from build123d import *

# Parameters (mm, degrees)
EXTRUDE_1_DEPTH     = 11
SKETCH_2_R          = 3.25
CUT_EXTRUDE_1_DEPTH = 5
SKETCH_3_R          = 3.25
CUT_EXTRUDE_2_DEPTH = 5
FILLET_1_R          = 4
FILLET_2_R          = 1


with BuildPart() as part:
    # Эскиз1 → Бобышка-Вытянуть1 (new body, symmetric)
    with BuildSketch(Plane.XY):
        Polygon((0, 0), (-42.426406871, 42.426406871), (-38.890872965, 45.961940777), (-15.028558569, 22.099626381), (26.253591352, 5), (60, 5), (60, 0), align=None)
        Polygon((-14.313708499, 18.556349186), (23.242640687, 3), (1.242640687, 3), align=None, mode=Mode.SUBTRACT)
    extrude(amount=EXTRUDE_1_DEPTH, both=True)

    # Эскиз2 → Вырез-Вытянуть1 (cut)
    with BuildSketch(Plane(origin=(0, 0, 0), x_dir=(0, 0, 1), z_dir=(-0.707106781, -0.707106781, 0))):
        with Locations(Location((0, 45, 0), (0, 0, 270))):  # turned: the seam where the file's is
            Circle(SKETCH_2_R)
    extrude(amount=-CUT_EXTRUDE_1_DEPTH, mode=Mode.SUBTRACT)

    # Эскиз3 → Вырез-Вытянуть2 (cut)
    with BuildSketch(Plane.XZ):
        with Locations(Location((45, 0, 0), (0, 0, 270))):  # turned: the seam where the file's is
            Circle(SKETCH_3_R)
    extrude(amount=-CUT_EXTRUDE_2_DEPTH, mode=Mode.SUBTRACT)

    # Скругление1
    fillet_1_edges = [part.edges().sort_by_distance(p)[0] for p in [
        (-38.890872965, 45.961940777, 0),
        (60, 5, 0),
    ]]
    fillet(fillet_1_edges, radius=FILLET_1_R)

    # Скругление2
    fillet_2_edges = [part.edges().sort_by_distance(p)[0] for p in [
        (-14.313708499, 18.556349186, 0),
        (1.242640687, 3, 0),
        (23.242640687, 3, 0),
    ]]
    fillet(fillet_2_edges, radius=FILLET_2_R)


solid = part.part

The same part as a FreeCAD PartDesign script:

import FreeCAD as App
import Part
import Sketcher
from FreeCAD import Vector
Q = App.Units.Quantity


def edges_at(feature, points):
    """Names of the edges that pass closest to the given points."""
    edges = feature.Shape.Edges
    near = lambda p: min(range(len(edges)), key=lambda i: edges[i].distToShape(Part.Vertex(*p))[0])
    return sorted({f"Edge{near(p) + 1}" for p in points})


def add_polygon(sketch, points):
    """Adds a closed chain of lines whose ends are joined by coincident constraints."""
    first, n = sketch.GeometryCount, len(points)
    for a, b in zip(points, points[1:] + points[:1]):
        sketch.addGeometry(Part.LineSegment(App.Vector(*a, 0), App.Vector(*b, 0)), False)
    for i in range(n):
        sketch.addConstraint(Sketcher.Constraint("Coincident", first + i, 2, first + (i + 1) % n, 1))

doc = App.newDocument("Part")
body = doc.addObject("PartDesign::Body", "Body")

sketch1 = doc.addObject("Sketcher::SketchObject", "Sketch")
body.addObject(sketch1)
sketch1.AttachmentSupport = (doc.XY_Plane, [""])
sketch1.MapMode = "FlatFace"
add_polygon(sketch1, [(-42.426407, 42.426407), (0, 0), (60, 0), (60, 5), (26.253591, 5), (-15.028559, 22.099626), (-38.890873, 45.961941)])
add_polygon(sketch1, [(-14.313708, 18.556349), (23.242641, 3), (1.242641, 3)])
sketch1.addConstraint(Sketcher.Constraint("Horizontal", 1))
sketch1.addConstraint(Sketcher.Constraint("Vertical", 2))
sketch1.addConstraint(Sketcher.Constraint("Horizontal", 3))
sketch1.addConstraint(Sketcher.Constraint("Horizontal", 8))
sketch1.addConstraint(Sketcher.Constraint("Coincident", 0, 2, -1, 1))
sketch1.addConstraint(Sketcher.Constraint("Parallel", 0, 5))
sketch1.addConstraint(Sketcher.Constraint("Perpendicular", 5, 6))
sketch1.addConstraint(Sketcher.Constraint("Parallel", 4, 7))
sketch1.addConstraint(Sketcher.Constraint("Perpendicular", 6, 9))
sketch1.addConstraint(Sketcher.Constraint("DistanceX", 1, 1, 1, 2, 60.0))
sketch1.addConstraint(Sketcher.Constraint("DistanceX", 8, 2, 8, 1, 22.0))
sketch1.addConstraint(Sketcher.Constraint("DistanceY", 2, 1, 2, 2, 5.0))
sketch1.addConstraint(Sketcher.Constraint("Angle", 0, Q("-45 deg")))
sketch1.addConstraint(Sketcher.Constraint("Distance", 0, 60.0))
sketch1.addConstraint(Sketcher.Constraint("Distance", 6, 5.0))
sketch1.addConstraint(Sketcher.Constraint("Distance", 9, 22.0))
sketch1.addConstraint(Sketcher.Constraint("DistanceY", -1, 1, 7, 2, 3.0))
sketch1.addConstraint(Sketcher.Constraint("DistanceX", 6, 2, 3, 2, 68.679998))
sketch1.addConstraint(Sketcher.Constraint("DistanceX", 4, 2, 7, 2, 38.271199))
pad1 = doc.addObject("PartDesign::Pad", "Pad")
body.addObject(pad1)
pad1.Profile = sketch1
pad1.Length = 22
pad1.Midplane = True

sketch2 = doc.addObject("Sketcher::SketchObject", "Sketch001")
body.addObject(sketch2)
sketch2.Placement = App.Placement(Vector(0, 0, 0), App.Rotation(Vector(0, 0, 1), Vector(-0.707106781, 0.707106781, 0), Vector(-0.707106781, -0.707106781, 0), "ZXY"))
sketch2.addGeometry(Part.Circle(Vector(0, 45, 0), Vector(0, 0, 1), 3.25), False)
sketch2.addConstraint(Sketcher.Constraint("PointOnObject", 0, 3, -2))
sketch2.addConstraint(Sketcher.Constraint("Diameter", 0, 6.5))
sketch2.addConstraint(Sketcher.Constraint("DistanceY", -1, 1, 0, 3, 45.0))
pocket1 = doc.addObject("PartDesign::Pocket", "Pocket")
body.addObject(pocket1)
pocket1.Profile = sketch2
pocket1.Length = 5

sketch3 = doc.addObject("Sketcher::SketchObject", "Sketch002")
body.addObject(sketch3)
sketch3.AttachmentSupport = (doc.XZ_Plane, [""])
sketch3.MapMode = "FlatFace"
sketch3.addGeometry(Part.Circle(Vector(45, 0, 0), Vector(0, 0, 1), 3.25), False)
sketch3.addConstraint(Sketcher.Constraint("PointOnObject", 0, 3, -1))
sketch3.addConstraint(Sketcher.Constraint("Diameter", 0, 6.5))
sketch3.addConstraint(Sketcher.Constraint("DistanceX", -1, 1, 0, 3, 45.0))
pocket2 = doc.addObject("PartDesign::Pocket", "Pocket001")
body.addObject(pocket2)
pocket2.Profile = sketch3
pocket2.Length = 5
doc.recompute()

fillet = doc.addObject("PartDesign::Fillet", "Fillet")
body.addObject(fillet)
fillet.Base = (pocket2, edges_at(pocket2, [(-38.891, 45.962, 0), (60, 5, 0)]))
fillet.Radius = 4
doc.recompute()

fillet2 = doc.addObject("PartDesign::Fillet", "Fillet001")
body.addObject(fillet2)
fillet2.Base = (fillet, edges_at(fillet, [(-14.314, 18.556, 0), (1.243, 3, 0), (23.243, 3, 0)]))
fillet2.Radius = 1

doc.recompute()
